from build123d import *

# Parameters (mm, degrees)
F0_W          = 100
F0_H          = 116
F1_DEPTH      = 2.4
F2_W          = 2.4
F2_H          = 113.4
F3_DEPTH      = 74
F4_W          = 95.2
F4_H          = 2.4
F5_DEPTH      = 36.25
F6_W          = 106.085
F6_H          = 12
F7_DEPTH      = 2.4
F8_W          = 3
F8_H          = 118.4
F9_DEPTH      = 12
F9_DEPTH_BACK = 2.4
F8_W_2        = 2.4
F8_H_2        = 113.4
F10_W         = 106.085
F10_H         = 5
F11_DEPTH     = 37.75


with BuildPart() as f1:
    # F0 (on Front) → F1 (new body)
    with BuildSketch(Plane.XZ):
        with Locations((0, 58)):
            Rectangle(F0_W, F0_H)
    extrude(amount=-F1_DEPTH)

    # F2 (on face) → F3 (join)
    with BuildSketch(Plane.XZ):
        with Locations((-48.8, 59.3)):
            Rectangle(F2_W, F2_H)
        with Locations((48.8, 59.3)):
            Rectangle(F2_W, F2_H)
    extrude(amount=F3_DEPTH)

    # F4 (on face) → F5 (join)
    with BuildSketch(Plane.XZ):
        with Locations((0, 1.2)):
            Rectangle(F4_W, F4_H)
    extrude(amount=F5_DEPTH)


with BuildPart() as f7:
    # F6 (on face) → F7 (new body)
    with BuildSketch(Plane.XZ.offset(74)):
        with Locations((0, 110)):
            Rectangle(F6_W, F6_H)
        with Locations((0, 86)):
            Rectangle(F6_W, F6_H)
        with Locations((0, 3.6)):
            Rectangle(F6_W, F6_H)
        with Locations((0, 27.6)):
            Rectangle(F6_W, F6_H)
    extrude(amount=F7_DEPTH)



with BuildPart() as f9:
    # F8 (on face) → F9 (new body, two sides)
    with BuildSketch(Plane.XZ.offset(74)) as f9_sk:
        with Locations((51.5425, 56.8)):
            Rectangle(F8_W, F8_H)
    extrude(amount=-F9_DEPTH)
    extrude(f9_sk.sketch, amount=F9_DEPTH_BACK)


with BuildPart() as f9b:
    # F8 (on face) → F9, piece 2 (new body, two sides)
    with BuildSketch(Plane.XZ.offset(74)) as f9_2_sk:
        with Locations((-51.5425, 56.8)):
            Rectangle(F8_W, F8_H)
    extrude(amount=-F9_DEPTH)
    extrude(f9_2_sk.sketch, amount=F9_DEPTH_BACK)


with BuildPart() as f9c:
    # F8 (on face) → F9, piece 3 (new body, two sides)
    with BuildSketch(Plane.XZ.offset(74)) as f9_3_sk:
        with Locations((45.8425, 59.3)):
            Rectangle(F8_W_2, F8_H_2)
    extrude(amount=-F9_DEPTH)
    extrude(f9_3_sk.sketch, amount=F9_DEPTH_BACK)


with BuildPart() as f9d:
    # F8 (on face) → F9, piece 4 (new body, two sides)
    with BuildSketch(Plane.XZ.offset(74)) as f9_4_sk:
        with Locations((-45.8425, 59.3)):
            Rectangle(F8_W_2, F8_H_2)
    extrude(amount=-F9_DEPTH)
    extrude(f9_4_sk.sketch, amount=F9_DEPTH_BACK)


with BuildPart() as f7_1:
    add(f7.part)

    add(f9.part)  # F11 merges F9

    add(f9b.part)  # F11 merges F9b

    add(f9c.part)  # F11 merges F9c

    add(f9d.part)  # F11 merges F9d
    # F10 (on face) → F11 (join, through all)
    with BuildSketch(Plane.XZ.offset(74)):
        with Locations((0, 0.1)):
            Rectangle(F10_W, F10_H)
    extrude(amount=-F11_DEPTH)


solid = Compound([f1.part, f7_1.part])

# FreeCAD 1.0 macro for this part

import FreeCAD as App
import Part
import Sketcher

V = App.Vector
Q = App.Units.Quantity


def add_polygon(sketch, points):
    """Adds a closed chain of lines whose ends are joined by coincident constraints."""
    first, n = sketch.GeometryCount, len(points)
    for a, b in zip(points, points[1:] + points[:1]):
        sketch.addGeometry(Part.LineSegment(App.Vector(*a, 0), App.Vector(*b, 0)), False)
    for i in range(n):
        sketch.addConstraint(Sketcher.Constraint("Coincident", first + i, 2, first + (i + 1) % n, 1))

doc = App.newDocument("Part")
body = doc.addObject("PartDesign::Body", "Body")

# Sketch on XZ plane
sketch1 = doc.addObject("Sketcher::SketchObject", "Sketch")
body.addObject(sketch1)
sketch1.AttachmentSupport = (doc.XZ_Plane, [""])
sketch1.MapMode = "FlatFace"
add_polygon(sketch1, [(-50, 116), (-50, 0), (50, 0), (50, 116)])  # lines 0-3
sketch1.addConstraint([
    Sketcher.Constraint("Vertical", 0),
    Sketcher.Constraint("Horizontal", 1),
    Sketcher.Constraint("Vertical", 2),
    Sketcher.Constraint("Horizontal", 3),
    Sketcher.Constraint("Symmetric", 0, 2, 1, 2, -1, 1),
    Sketcher.Constraint("DistanceX", 1, 1, 1, 2, Q("100 mm")),
    Sketcher.Constraint("DistanceY", 0, 2, 0, 1, Q("116 mm")),
])
pad1 = doc.addObject("PartDesign::Pad", "Pad")
body.addObject(pad1)
pad1.Profile = sketch1
pad1.Length = 2.4
pad1.Reversed = True

# Sketch on XZ plane
sketch2 = doc.addObject("Sketcher::SketchObject", "Sketch001")
body.addObject(sketch2)
sketch2.AttachmentSupport = (doc.XZ_Plane, [""])
sketch2.MapMode = "FlatFace"
add_polygon(sketch2, [(-50, 116), (-50, 2.6), (-47.6, 2.6), (-47.6, 116)])  # lines 0-3
add_polygon(sketch2, [(47.6, 116), (47.6, 2.6), (50, 2.6), (50, 116)])  # lines 4-7
sketch2.addConstraint([
    Sketcher.Constraint("Vertical", 0),
    Sketcher.Constraint("Horizontal", 1),
    Sketcher.Constraint("Vertical", 2),
    Sketcher.Constraint("Horizontal", 3),
    Sketcher.Constraint("Vertical", 4),
    Sketcher.Constraint("Horizontal", 5),
    Sketcher.Constraint("Vertical", 6),
    Sketcher.Constraint("Horizontal", 7),
    Sketcher.Constraint("Symmetric", 1, 2, 4, 2, -2),
    Sketcher.Constraint("Symmetric", 3, 2, 6, 2, -2),
    Sketcher.Constraint("DistanceX", 1, 1, 1, 2, Q("2.4 mm")),
    Sketcher.Constraint("DistanceY", 0, 2, 0, 1, Q("113.4 mm")),
    Sketcher.Constraint("DistanceX", 0, 2, -1, 1, Q("50 mm")),
    Sketcher.Constraint("DistanceY", -1, 1, 2, 2, Q("116 mm")),
])
pad2 = doc.addObject("PartDesign::Pad", "Pad001")
body.addObject(pad2)
pad2.Profile = sketch2
pad2.Length = 74

# Sketch on XZ plane
sketch3 = doc.addObject("Sketcher::SketchObject", "Sketch002")
body.addObject(sketch3)
sketch3.AttachmentSupport = (doc.XZ_Plane, [""])
sketch3.MapMode = "FlatFace"
add_polygon(sketch3, [(-47.6, 2.4), (-47.6, 0), (47.6, 0), (47.6, 2.4)])  # lines 0-3
sketch3.addConstraint([
    Sketcher.Constraint("Vertical", 0),
    Sketcher.Constraint("Horizontal", 1),
    Sketcher.Constraint("Vertical", 2),
    Sketcher.Constraint("Horizontal", 3),
    Sketcher.Constraint("Symmetric", 0, 2, 1, 2, -1, 1),
    Sketcher.Constraint("DistanceX", 1, 1, 1, 2, Q("95.2 mm")),
    Sketcher.Constraint("DistanceY", 0, 2, 0, 1, Q("2.4 mm")),
])
pad3 = doc.addObject("PartDesign::Pad", "Pad002")
body.addObject(pad3)
pad3.Profile = sketch3
pad3.Length = 36.25
body2 = doc.addObject("PartDesign::Body", "Body001")
body2.AllowCompound = True

# Sketch on XZ plane
sketch4 = doc.addObject("Sketcher::SketchObject", "Sketch003")
body2.addObject(sketch4)
sketch4.AttachmentSupport = (doc.getObject("XZ_Plane001"), [""])
sketch4.MapMode = "FlatFace"
sketch4.AttachmentOffset = App.Placement(V(0, 0, 74), App.Rotation())
add_polygon(sketch4, [(-53.0425, 116), (-53.0425, 104), (53.0425, 104), (53.0425, 116)])  # lines 0-3
add_polygon(sketch4, [(-53.0425, 92), (-53.0425, 80), (53.0425, 80), (53.0425, 92)])  # lines 4-7
add_polygon(sketch4, [(-53.0425, 9.6), (-53.0425, -2.4), (53.0425, -2.4), (53.0425, 9.6)])  # lines 8-11
add_polygon(sketch4, [(-53.0425, 33.6), (-53.0425, 21.6), (53.0425, 21.6), (53.0425, 33.6)])  # lines 12-15
sketch4.addConstraint([
    Sketcher.Constraint("Vertical", 0),
    Sketcher.Constraint("Horizontal", 1),
    Sketcher.Constraint("Vertical", 2),
    Sketcher.Constraint("Horizontal", 3),
    Sketcher.Constraint("Vertical", 4),
    Sketcher.Constraint("Horizontal", 5),
    Sketcher.Constraint("Vertical", 6),
    Sketcher.Constraint("Horizontal", 7),
    Sketcher.Constraint("Vertical", 8),
    Sketcher.Constraint("Horizontal", 9),
    Sketcher.Constraint("Vertical", 10),
    Sketcher.Constraint("Horizontal", 11),
    Sketcher.Constraint("Vertical", 12),
    Sketcher.Constraint("Horizontal", 13),
    Sketcher.Constraint("Vertical", 14),
    Sketcher.Constraint("Horizontal", 15),
    Sketcher.Constraint("Vertical", 3, 2, 4, 2),
    Sketcher.Constraint("Vertical", 2, 2, 5, 2),
    Sketcher.Constraint("Vertical", 7, 2, 8, 2),
    Sketcher.Constraint("Vertical", 6, 2, 9, 2),
    Sketcher.Constraint("Vertical", 11, 2, 12, 2),
    Sketcher.Constraint("Vertical", 10, 2, 13, 2),
    Sketcher.Constraint("Equal", 2, 4),
    Sketcher.Constraint("Equal", 6, 8),
    Sketcher.Constraint("Equal", 10, 12),
    Sketcher.Constraint("DistanceY", 0, 2, 0, 1, Q("12 mm")),
    Sketcher.Constraint("DistanceY", -1, 1, 0, 2, Q("104 mm")),
    Sketcher.Constraint("DistanceY", -1, 1, 4, 2, Q("80 mm")),
    Sketcher.Constraint("DistanceY", 11, 2, 12, 2, Q("12 mm")),
    Sketcher.Constraint("DistanceY", 8, 2, -1, 1, Q("2.4 mm")),
    Sketcher.Constraint("DistanceX", 1, 1, 1, 2, Q("106.085 mm")),
    Sketcher.Constraint("DistanceX", 0, 2, -1, 1, Q("53.0425 mm")),
])
pad4 = doc.addObject("PartDesign::Pad", "Pad003")
body2.addObject(pad4)
pad4.Profile = sketch4
pad4.Length = 2.4
body3 = doc.addObject("PartDesign::Body", "Body002")

# Sketch on XZ plane
sketch5 = doc.addObject("Sketcher::SketchObject", "Sketch004")
body3.addObject(sketch5)
sketch5.AttachmentSupport = (doc.getObject("XZ_Plane002"), [""])
sketch5.MapMode = "FlatFace"
sketch5.AttachmentOffset = App.Placement(V(0, 0, 74), App.Rotation())
add_polygon(sketch5, [(50.0425, 116), (50.0425, -2.4), (53.0425, -2.4), (53.0425, 116)])  # lines 0-3
sketch5.addConstraint([
    Sketcher.Constraint("Vertical", 0),
    Sketcher.Constraint("Horizontal", 1),
    Sketcher.Constraint("Vertical", 2),
    Sketcher.Constraint("Horizontal", 3),
    Sketcher.Constraint("DistanceX", 1, 1, 1, 2, Q("3 mm")),
    Sketcher.Constraint("DistanceY", 0, 2, 0, 1, Q("118.4 mm")),
    Sketcher.Constraint("DistanceY", -1, 1, 2, 2, Q("116 mm")),
    Sketcher.Constraint("DistanceX", -1, 1, 0, 2, Q("50.0425 mm")),
])
pad5 = doc.addObject("PartDesign::Pad", "Pad004")
body3.addObject(pad5)
pad5.Profile = sketch5
pad5.Type = "TwoLengths"
pad5.Length = 12
pad5.Length2 = 2.4
pad5.Reversed = True
body4 = doc.addObject("PartDesign::Body", "Body003")

# Sketch on XZ plane
sketch6 = doc.addObject("Sketcher::SketchObject", "Sketch005")
body4.addObject(sketch6)
sketch6.AttachmentSupport = (doc.getObject("XZ_Plane003"), [""])
sketch6.MapMode = "FlatFace"
sketch6.AttachmentOffset = App.Placement(V(0, 0, 74), App.Rotation())
add_polygon(sketch6, [(-53.0425, 116), (-53.0425, -2.4), (-50.0425, -2.4), (-50.0425, 116)])  # lines 0-3
sketch6.addConstraint([
    Sketcher.Constraint("Vertical", 0),
    Sketcher.Constraint("Horizontal", 1),
    Sketcher.Constraint("Vertical", 2),
    Sketcher.Constraint("Horizontal", 3),
    Sketcher.Constraint("DistanceX", 1, 1, 1, 2, Q("3 mm")),
    Sketcher.Constraint("DistanceY", 0, 2, 0, 1, Q("118.4 mm")),
    Sketcher.Constraint("DistanceY", -1, 1, 2, 2, Q("116 mm")),
    Sketcher.Constraint("DistanceX", 0, 2, -1, 1, Q("53.0425 mm")),
])
pad6 = doc.addObject("PartDesign::Pad", "Pad005")
body4.addObject(pad6)
pad6.Profile = sketch6
pad6.Type = "TwoLengths"
pad6.Length = 12
pad6.Length2 = 2.4
pad6.Reversed = True
body5 = doc.addObject("PartDesign::Body", "Body004")

# Sketch on XZ plane
sketch7 = doc.addObject("Sketcher::SketchObject", "Sketch006")
body5.addObject(sketch7)
sketch7.AttachmentSupport = (doc.getObject("XZ_Plane004"), [""])
sketch7.MapMode = "FlatFace"
sketch7.AttachmentOffset = App.Placement(V(0, 0, 74), App.Rotation())
add_polygon(sketch7, [(44.6425, 116), (44.6425, 2.6), (47.0425, 2.6), (47.0425, 116)])  # lines 0-3
sketch7.addConstraint([
    Sketcher.Constraint("Vertical", 0),
    Sketcher.Constraint("Horizontal", 1),
    Sketcher.Constraint("Vertical", 2),
    Sketcher.Constraint("Horizontal", 3),
    Sketcher.Constraint("DistanceX", 1, 1, 1, 2, Q("2.4 mm")),
    Sketcher.Constraint("DistanceY", 0, 2, 0, 1, Q("113.4 mm")),
    Sketcher.Constraint("DistanceY", -1, 1, 2, 2, Q("116 mm")),
    Sketcher.Constraint("DistanceX", -1, 1, 0, 2, Q("44.6425 mm")),
])
pad7 = doc.addObject("PartDesign::Pad", "Pad006")
body5.addObject(pad7)
pad7.Profile = sketch7
pad7.Type = "TwoLengths"
pad7.Length = 12
pad7.Length2 = 2.4
pad7.Reversed = True
body6 = doc.addObject("PartDesign::Body", "Body005")

# Sketch on XZ plane
sketch8 = doc.addObject("Sketcher::SketchObject", "Sketch007")
body6.addObject(sketch8)
sketch8.AttachmentSupport = (doc.getObject("XZ_Plane005"), [""])
sketch8.MapMode = "FlatFace"
sketch8.AttachmentOffset = App.Placement(V(0, 0, 74), App.Rotation())
add_polygon(sketch8, [(-47.0425, 116), (-47.0425, 2.6), (-44.6425, 2.6), (-44.6425, 116)])  # lines 0-3
sketch8.addConstraint([
    Sketcher.Constraint("Vertical", 0),
    Sketcher.Constraint("Horizontal", 1),
    Sketcher.Constraint("Vertical", 2),
    Sketcher.Constraint("Horizontal", 3),
    Sketcher.Constraint("DistanceX", 1, 1, 1, 2, Q("2.4 mm")),
    Sketcher.Constraint("DistanceY", 0, 2, 0, 1, Q("113.4 mm")),
    Sketcher.Constraint("DistanceY", -1, 1, 2, 2, Q("116 mm")),
    Sketcher.Constraint("DistanceX", 0, 2, -1, 1, Q("47.0425 mm")),
])
pad8 = doc.addObject("PartDesign::Pad", "Pad007")
body6.addObject(pad8)
pad8.Profile = sketch8
pad8.Type = "TwoLengths"
pad8.Length = 12
pad8.Length2 = 2.4
pad8.Reversed = True
doc.recompute()

boolean = doc.addObject("PartDesign::Boolean", "Boolean")
body2.addObject(boolean)
boolean.Type = "Fuse"
boolean.addObjects([body3])
doc.recompute()

boolean2 = doc.addObject("PartDesign::Boolean", "Boolean001")
body2.addObject(boolean2)
boolean2.Type = "Fuse"
boolean2.addObjects([body4])
doc.recompute()

boolean3 = doc.addObject("PartDesign::Boolean", "Boolean002")
body2.addObject(boolean3)
boolean3.Type = "Fuse"
boolean3.addObjects([body5])
doc.recompute()

boolean4 = doc.addObject("PartDesign::Boolean", "Boolean003")
body2.addObject(boolean4)
boolean4.Type = "Fuse"
boolean4.addObjects([body6])

# Sketch on XZ plane
sketch9 = doc.addObject("Sketcher::SketchObject", "Sketch008")
body2.addObject(sketch9)
sketch9.AttachmentSupport = (doc.getObject("XZ_Plane001"), [""])
sketch9.MapMode = "FlatFace"
sketch9.AttachmentOffset = App.Placement(V(0, 0, 74), App.Rotation())
add_polygon(sketch9, [(-53.0425, 2.6), (-53.0425, -2.4), (53.0425, -2.4), (53.0425, 2.6)])  # lines 0-3
sketch9.addConstraint([
    Sketcher.Constraint("Vertical", 0),
    Sketcher.Constraint("Horizontal", 1),
    Sketcher.Constraint("Vertical", 2),
    Sketcher.Constraint("Horizontal", 3),
    Sketcher.Constraint("DistanceY", 0, 2, 0, 1, Q("5 mm")),
    Sketcher.Constraint("DistanceY", 0, 2, -1, 1, Q("2.4 mm")),
    Sketcher.Constraint("DistanceX", 1, 1, 1, 2, Q("106.085 mm")),
    Sketcher.Constraint("DistanceX", 0, 2, -1, 1, Q("53.0425 mm")),
])
pad9 = doc.addObject("PartDesign::Pad", "Pad008")
body2.addObject(pad9)
pad9.Profile = sketch9
pad9.Length = 37.75
pad9.Reversed = True

doc.recompute()
